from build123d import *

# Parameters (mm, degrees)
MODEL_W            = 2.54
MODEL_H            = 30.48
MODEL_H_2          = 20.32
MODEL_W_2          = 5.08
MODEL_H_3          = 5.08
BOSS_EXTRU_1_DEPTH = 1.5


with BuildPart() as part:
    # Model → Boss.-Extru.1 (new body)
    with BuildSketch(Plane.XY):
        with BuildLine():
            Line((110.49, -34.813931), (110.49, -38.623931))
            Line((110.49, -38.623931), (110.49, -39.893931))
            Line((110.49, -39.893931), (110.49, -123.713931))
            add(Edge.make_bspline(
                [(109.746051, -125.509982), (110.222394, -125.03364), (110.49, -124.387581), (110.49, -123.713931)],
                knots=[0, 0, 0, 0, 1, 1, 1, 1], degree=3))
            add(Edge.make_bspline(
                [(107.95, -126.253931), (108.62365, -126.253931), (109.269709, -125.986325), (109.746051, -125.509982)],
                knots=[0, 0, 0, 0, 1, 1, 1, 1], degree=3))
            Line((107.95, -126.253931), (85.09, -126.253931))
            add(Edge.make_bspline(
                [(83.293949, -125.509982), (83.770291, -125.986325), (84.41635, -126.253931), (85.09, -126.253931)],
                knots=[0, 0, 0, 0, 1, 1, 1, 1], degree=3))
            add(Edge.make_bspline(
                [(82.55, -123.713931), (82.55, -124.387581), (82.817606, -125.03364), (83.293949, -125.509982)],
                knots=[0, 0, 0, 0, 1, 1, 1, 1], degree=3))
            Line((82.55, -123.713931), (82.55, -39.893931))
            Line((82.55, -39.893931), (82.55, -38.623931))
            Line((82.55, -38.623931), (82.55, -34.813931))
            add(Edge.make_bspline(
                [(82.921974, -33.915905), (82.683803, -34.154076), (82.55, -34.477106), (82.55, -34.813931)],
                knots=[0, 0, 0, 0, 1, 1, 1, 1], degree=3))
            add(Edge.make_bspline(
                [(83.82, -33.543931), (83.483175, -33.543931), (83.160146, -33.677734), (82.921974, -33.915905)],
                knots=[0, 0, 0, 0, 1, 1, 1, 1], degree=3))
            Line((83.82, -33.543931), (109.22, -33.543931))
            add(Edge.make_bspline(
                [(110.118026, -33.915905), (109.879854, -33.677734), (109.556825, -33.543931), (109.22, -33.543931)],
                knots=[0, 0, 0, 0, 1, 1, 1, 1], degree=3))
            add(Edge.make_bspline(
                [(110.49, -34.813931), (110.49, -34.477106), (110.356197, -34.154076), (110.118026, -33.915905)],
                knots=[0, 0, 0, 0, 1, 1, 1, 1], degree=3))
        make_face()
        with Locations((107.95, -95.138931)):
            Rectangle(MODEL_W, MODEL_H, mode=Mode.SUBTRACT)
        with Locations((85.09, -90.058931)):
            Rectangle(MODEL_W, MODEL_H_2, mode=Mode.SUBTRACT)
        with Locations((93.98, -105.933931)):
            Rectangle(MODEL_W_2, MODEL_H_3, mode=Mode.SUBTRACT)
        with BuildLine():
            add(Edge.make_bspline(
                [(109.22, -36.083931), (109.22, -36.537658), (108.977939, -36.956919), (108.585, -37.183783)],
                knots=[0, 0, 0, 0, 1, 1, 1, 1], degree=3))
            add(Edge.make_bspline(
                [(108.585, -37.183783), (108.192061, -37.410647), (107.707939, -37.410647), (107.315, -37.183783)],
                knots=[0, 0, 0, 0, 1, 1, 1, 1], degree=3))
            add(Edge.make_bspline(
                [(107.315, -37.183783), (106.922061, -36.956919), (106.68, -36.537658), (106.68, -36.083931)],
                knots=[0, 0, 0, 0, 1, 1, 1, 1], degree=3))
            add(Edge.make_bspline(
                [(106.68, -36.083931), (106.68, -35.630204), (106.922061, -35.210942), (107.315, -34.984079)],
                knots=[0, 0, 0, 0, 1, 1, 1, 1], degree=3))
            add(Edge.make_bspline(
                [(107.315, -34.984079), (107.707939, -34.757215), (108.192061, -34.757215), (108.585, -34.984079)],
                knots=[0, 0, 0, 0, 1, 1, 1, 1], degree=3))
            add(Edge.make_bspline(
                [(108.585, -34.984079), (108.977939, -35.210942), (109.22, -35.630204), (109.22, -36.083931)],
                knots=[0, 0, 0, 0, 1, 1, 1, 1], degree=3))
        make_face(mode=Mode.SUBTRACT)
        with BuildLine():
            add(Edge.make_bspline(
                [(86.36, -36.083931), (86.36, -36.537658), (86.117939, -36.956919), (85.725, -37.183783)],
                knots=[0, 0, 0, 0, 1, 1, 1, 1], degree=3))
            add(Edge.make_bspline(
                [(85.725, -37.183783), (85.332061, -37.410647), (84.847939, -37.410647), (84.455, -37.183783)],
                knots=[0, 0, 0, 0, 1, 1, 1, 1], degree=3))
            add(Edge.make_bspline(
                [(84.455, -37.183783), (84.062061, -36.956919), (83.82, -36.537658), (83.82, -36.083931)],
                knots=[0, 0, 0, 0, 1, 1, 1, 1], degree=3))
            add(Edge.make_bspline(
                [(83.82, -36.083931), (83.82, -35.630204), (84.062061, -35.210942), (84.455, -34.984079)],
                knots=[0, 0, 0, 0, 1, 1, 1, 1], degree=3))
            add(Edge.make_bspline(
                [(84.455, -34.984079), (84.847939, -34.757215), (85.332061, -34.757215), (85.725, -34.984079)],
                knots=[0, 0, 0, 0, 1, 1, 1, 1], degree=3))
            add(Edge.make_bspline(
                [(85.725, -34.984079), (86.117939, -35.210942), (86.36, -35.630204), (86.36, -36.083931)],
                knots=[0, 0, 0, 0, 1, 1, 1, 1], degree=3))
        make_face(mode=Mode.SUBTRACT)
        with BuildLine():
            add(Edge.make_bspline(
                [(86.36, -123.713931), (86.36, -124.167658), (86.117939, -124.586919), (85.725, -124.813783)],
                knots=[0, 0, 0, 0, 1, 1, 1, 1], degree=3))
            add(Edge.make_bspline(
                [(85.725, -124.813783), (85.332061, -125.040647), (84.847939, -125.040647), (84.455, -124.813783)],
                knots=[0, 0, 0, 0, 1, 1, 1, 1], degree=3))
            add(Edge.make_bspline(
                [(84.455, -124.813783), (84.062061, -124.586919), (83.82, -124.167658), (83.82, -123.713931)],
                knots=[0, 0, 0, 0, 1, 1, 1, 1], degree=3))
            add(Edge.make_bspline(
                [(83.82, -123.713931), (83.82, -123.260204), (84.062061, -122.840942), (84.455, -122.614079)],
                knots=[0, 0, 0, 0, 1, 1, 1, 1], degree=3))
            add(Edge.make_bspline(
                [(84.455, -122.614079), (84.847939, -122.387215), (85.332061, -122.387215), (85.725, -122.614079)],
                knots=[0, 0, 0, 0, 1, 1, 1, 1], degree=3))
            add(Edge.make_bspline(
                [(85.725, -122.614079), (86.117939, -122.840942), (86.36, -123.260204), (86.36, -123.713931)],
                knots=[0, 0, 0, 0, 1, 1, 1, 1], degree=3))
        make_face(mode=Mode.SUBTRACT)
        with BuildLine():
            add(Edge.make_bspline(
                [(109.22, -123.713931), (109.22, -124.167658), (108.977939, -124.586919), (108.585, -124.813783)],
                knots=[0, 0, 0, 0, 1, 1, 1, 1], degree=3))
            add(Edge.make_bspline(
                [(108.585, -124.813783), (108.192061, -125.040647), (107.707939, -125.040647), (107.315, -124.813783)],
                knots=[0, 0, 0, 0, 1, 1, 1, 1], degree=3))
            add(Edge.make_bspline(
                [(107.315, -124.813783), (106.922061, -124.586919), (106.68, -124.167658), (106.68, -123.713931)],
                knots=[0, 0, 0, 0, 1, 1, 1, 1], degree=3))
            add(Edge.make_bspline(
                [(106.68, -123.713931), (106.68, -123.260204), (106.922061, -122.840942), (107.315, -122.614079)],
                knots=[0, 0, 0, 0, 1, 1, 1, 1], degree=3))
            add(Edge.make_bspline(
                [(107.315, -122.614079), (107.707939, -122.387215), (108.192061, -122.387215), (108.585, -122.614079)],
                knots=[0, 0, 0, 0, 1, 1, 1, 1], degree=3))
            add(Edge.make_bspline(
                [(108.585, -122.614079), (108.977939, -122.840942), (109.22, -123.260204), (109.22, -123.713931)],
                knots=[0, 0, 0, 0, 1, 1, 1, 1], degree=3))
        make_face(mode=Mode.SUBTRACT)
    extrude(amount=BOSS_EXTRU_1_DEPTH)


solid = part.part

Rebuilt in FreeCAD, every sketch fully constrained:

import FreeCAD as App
import Part
import Sketcher
Q = App.Units.Quantity

doc = App.newDocument("Part")
body = doc.addObject("PartDesign::Body", "Body")

sketch1 = body.newObject("Sketcher::SketchObject", "Sketch")
sketch1.AttachmentSupport = (doc.getObject("XY_Plane"), [""])
sketch1.MapMode = "FlatFace"
sketch1.addGeometry([
    Part.LineSegment(App.Vector(110.49, -123.713931, 0), App.Vector(110.49, -34.813931, 0)),
    Part.BSplineCurve([App.Vector(110.49, -34.813931, 0), App.Vector(110.49, -34.477106, 0), App.Vector(110.356197, -34.154076, 0), App.Vector(110.118026, -33.915905, 0)], [4, 4], [0, 1], False, 3, [1, 1, 1, 1], False),
    Part.BSplineCurve([App.Vector(110.118026, -33.915905, 0), App.Vector(109.879854, -33.677734, 0), App.Vector(109.556825, -33.543931, 0), App.Vector(109.22, -33.543931, 0)], [4, 4], [0, 1], False, 3, [1, 1, 1, 1], False),
    Part.LineSegment(App.Vector(109.22, -33.543931, 0), App.Vector(83.82, -33.543931, 0)),
    Part.BSplineCurve([App.Vector(83.82, -33.543931, 0), App.Vector(83.483175, -33.543931, 0), App.Vector(83.160146, -33.677734, 0), App.Vector(82.921974, -33.915905, 0)], [4, 4], [0, 1], False, 3, [1, 1, 1, 1], False),
    Part.BSplineCurve([App.Vector(82.921974, -33.915905, 0), App.Vector(82.683803, -34.154076, 0), App.Vector(82.55, -34.477106, 0), App.Vector(82.55, -34.813931, 0)], [4, 4], [0, 1], False, 3, [1, 1, 1, 1], False),
    Part.LineSegment(App.Vector(82.55, -34.813931, 0), App.Vector(82.55, -123.713931, 0)),
    Part.BSplineCurve([App.Vector(82.55, -123.713931, 0), App.Vector(82.55, -124.387581, 0), App.Vector(82.817606, -125.03364, 0), App.Vector(83.293949, -125.509982, 0)], [4, 4], [0, 1], False, 3, [1, 1, 1, 1], False),
    Part.BSplineCurve([App.Vector(83.293949, -125.509982, 0), App.Vector(83.770291, -125.986325, 0), App.Vector(84.41635, -126.253931, 0), App.Vector(85.09, -126.253931, 0)], [4, 4], [0, 1], False, 3, [1, 1, 1, 1], False),
    Part.LineSegment(App.Vector(85.09, -126.253931, 0), App.Vector(107.95, -126.253931, 0)),
    Part.BSplineCurve([App.Vector(107.95, -126.253931, 0), App.Vector(108.62365, -126.253931, 0), App.Vector(109.269709, -125.986325, 0), App.Vector(109.746051, -125.509982, 0)], [4, 4], [0, 1], False, 3, [1, 1, 1, 1], False),
    Part.BSplineCurve([App.Vector(109.746051, -125.509982, 0), App.Vector(110.222394, -125.03364, 0), App.Vector(110.49, -124.387581, 0), App.Vector(110.49, -123.713931, 0)], [4, 4], [0, 1], False, 3, [1, 1, 1, 1], False),
    Part.BSplineCurve([App.Vector(107.315, -122.614079, 0), App.Vector(107.707939, -122.387215, 0), App.Vector(108.192061, -122.387215, 0), App.Vector(108.585, -122.614079, 0)], [4, 4], [0, 1], False, 3, [1, 1, 1, 1], False),
    Part.BSplineCurve([App.Vector(108.585, -122.614079, 0), App.Vector(108.977939, -122.840942, 0), App.Vector(109.22, -123.260204, 0), App.Vector(109.22, -124.167658, 0), App.Vector(108.977939, -124.586919, 0), App.Vector(108.192061, -125.040647, 0), App.Vector(107.707939, -125.040647, 0), App.Vector(106.922061, -124.586919, 0), App.Vector(106.68, -124.167658, 0), App.Vector(106.68, -123.260204, 0), App.Vector(106.922061, -122.840942, 0), App.Vector(107.315, -122.614079, 0)], [4, 2, 2, 2, 2, 4], [0, 1, 2, 3, 4, 5], False, 3, [1, 1, 1, 1, 1, 1, 1, 1, 1, 1, 1, 1], False),
    Part.LineSegment(App.Vector(106.68, -110.378931, 0), App.Vector(106.68, -79.898931, 0)),
    Part.LineSegment(App.Vector(106.68, -79.898931, 0), App.Vector(109.22, -79.898931, 0)),
    Part.LineSegment(App.Vector(109.22, -79.898931, 0), App.Vector(109.22, -110.378931, 0)),
    Part.LineSegment(App.Vector(109.22, -110.378931, 0), App.Vector(106.68, -110.378931, 0)),
    Part.LineSegment(App.Vector(91.44, -108.473931, 0), App.Vector(91.44, -103.393931, 0)),
    Part.LineSegment(App.Vector(91.44, -103.393931, 0), App.Vector(96.52, -103.393931, 0)),
    Part.LineSegment(App.Vector(96.52, -103.393931, 0), App.Vector(96.52, -108.473931, 0)),
    Part.LineSegment(App.Vector(96.52, -108.473931, 0), App.Vector(91.44, -108.473931, 0)),
    Part.BSplineCurve([App.Vector(84.455, -122.614079, 0), App.Vector(84.847939, -122.387215, 0), App.Vector(85.332061, -122.387215, 0), App.Vector(85.725, -122.614079, 0)], [4, 4], [0, 1], False, 3, [1, 1, 1, 1], False),
    Part.BSplineCurve([App.Vector(85.725, -122.614079, 0), App.Vector(86.117939, -122.840942, 0), App.Vector(86.36, -123.260204, 0), App.Vector(86.36, -124.167658, 0), App.Vector(86.117939, -124.586919, 0), App.Vector(85.332061, -125.040647, 0), App.Vector(84.847939, -125.040647, 0), App.Vector(84.062061, -124.586919, 0), App.Vector(83.82, -124.167658, 0), App.Vector(83.82, -123.260204, 0), App.Vector(84.062061, -122.840942, 0), App.Vector(84.455, -122.614079, 0)], [4, 2, 2, 2, 2, 4], [0, 1, 2, 3, 4, 5], False, 3, [1, 1, 1, 1, 1, 1, 1, 1, 1, 1, 1, 1], False),
    Part.LineSegment(App.Vector(83.82, -100.218931, 0), App.Vector(83.82, -79.898931, 0)),
    Part.LineSegment(App.Vector(83.82, -79.898931, 0), App.Vector(86.36, -79.898931, 0)),
    Part.LineSegment(App.Vector(86.36, -79.898931, 0), App.Vector(86.36, -100.218931, 0)),
    Part.LineSegment(App.Vector(86.36, -100.218931, 0), App.Vector(83.82, -100.218931, 0)),
    Part.BSplineCurve([App.Vector(107.315, -34.984079, 0), App.Vector(107.707939, -34.757215, 0), App.Vector(108.192061, -34.757215, 0), App.Vector(108.585, -34.984079, 0)], [4, 4], [0, 1], False, 3, [1, 1, 1, 1], False),
    Part.BSplineCurve([App.Vector(108.585, -34.984079, 0), App.Vector(108.977939, -35.210942, 0), App.Vector(109.22, -35.630204, 0), App.Vector(109.22, -36.537658, 0), App.Vector(108.977939, -36.956919, 0), App.Vector(108.192061, -37.410647, 0), App.Vector(107.707939, -37.410647, 0), App.Vector(106.922061, -36.956919, 0), App.Vector(106.68, -36.537658, 0), App.Vector(106.68, -35.630204, 0), App.Vector(106.922061, -35.210942, 0), App.Vector(107.315, -34.984079, 0)], [4, 2, 2, 2, 2, 4], [0, 1, 2, 3, 4, 5], False, 3, [1, 1, 1, 1, 1, 1, 1, 1, 1, 1, 1, 1], False),
    Part.BSplineCurve([App.Vector(84.455, -34.984079, 0), App.Vector(84.847939, -34.757215, 0), App.Vector(85.332061, -34.757215, 0), App.Vector(85.725, -34.984079, 0)], [4, 4], [0, 1], False, 3, [1, 1, 1, 1], False),
    Part.BSplineCurve([App.Vector(85.725, -34.984079, 0), App.Vector(86.117939, -35.210942, 0), App.Vector(86.36, -35.630204, 0), App.Vector(86.36, -36.537658, 0), App.Vector(86.117939, -36.956919, 0), App.Vector(85.332061, -37.410647, 0), App.Vector(84.847939, -37.410647, 0), App.Vector(84.062061, -36.956919, 0), App.Vector(83.82, -36.537658, 0), App.Vector(83.82, -35.630204, 0), App.Vector(84.062061, -35.210942, 0), App.Vector(84.455, -34.984079, 0)], [4, 2, 2, 2, 2, 4], [0, 1, 2, 3, 4, 5], False, 3, [1, 1, 1, 1, 1, 1, 1, 1, 1, 1, 1, 1], False),
], False)
sketch1.addConstraint([
    Sketcher.Constraint("Block", 1),
    Sketcher.Constraint("Block", 2),
    Sketcher.Constraint("Block", 4),
    Sketcher.Constraint("Block", 5),
    Sketcher.Constraint("Block", 7),
    Sketcher.Constraint("Block", 8),
    Sketcher.Constraint("Block", 10),
    Sketcher.Constraint("Block", 11),
    Sketcher.Constraint("Block", 12),
    Sketcher.Constraint("Block", 13),
    Sketcher.Constraint("Block", 22),
    Sketcher.Constraint("Block", 23),
    Sketcher.Constraint("Block", 28),
    Sketcher.Constraint("Block", 29),
    Sketcher.Constraint("Block", 30),
    Sketcher.Constraint("Block", 31),
    Sketcher.Constraint("Coincident", 0, 2, 1, 1),
    Sketcher.Constraint("Coincident", 2, 2, 3, 1),
    Sketcher.Constraint("Coincident", 3, 2, 4, 1),
    Sketcher.Constraint("Coincident", 5, 2, 6, 1),
    Sketcher.Constraint("Coincident", 6, 2, 7, 1),
    Sketcher.Constraint("Coincident", 8, 2, 9, 1),
    Sketcher.Constraint("Coincident", 9, 2, 10, 1),
    Sketcher.Constraint("Coincident", 11, 2, 0, 1),
    Sketcher.Constraint("Coincident", 14, 2, 15, 1),
    Sketcher.Constraint("Coincident", 15, 2, 16, 1),
    Sketcher.Constraint("Coincident", 16, 2, 17, 1),
    Sketcher.Constraint("Coincident", 17, 2, 14, 1),
    Sketcher.Constraint("Coincident", 18, 2, 19, 1),
    Sketcher.Constraint("Coincident", 19, 2, 20, 1),
    Sketcher.Constraint("Coincident", 20, 2, 21, 1),
    Sketcher.Constraint("Coincident", 21, 2, 18, 1),
    Sketcher.Constraint("Coincident", 24, 2, 25, 1),
    Sketcher.Constraint("Coincident", 25, 2, 26, 1),
    Sketcher.Constraint("Coincident", 26, 2, 27, 1),
    Sketcher.Constraint("Coincident", 27, 2, 24, 1),
    Sketcher.Constraint("Vertical", 14),
    Sketcher.Constraint("Horizontal", 15),
    Sketcher.Constraint("Vertical", 16),
    Sketcher.Constraint("Horizontal", 17),
    Sketcher.Constraint("Vertical", 18),
    Sketcher.Constraint("Horizontal", 19),
    Sketcher.Constraint("Vertical", 20),
    Sketcher.Constraint("Horizontal", 21),
    Sketcher.Constraint("Vertical", 24),
    Sketcher.Constraint("Horizontal", 25),
    Sketcher.Constraint("Vertical", 26),
    Sketcher.Constraint("Horizontal", 27),
    Sketcher.Constraint("Horizontal", 15, 2, 24, 2),
    Sketcher.Constraint("Vertical", 3, 2, 24, 2),
    Sketcher.Constraint("Equal", 17, 25),
    Sketcher.Constraint("Equal", 21, 18),
    Sketcher.Constraint("DistanceX", 15, 1, 15, 2, Q("0.1 in")),
    Sketcher.Constraint("DistanceX", 19, 1, 19, 2, Q("0.2 in")),
    Sketcher.Constraint("DistanceY", 14, 1, 14, 2, Q("1.2 in")),
    Sketcher.Constraint("DistanceY", 24, 1, 24, 2, Q("0.8 in")),
    Sketcher.Constraint("DistanceX", 3, 2, 15, 2, Q("1 in")),
    Sketcher.Constraint("DistanceX", -1, 1, 18, 2, Q("3.6 in")),
    Sketcher.Constraint("DistanceY", 6, 2, 18, 2, Q("0.8 in")),
    Sketcher.Constraint("DistanceY", 14, 2, 0, 2, Q("1.775 in")),
])
pad1 = body.newObject("PartDesign::Pad", "Pad")
pad1.Profile = sketch1
pad1.Length = 1.5

doc.recompute()
